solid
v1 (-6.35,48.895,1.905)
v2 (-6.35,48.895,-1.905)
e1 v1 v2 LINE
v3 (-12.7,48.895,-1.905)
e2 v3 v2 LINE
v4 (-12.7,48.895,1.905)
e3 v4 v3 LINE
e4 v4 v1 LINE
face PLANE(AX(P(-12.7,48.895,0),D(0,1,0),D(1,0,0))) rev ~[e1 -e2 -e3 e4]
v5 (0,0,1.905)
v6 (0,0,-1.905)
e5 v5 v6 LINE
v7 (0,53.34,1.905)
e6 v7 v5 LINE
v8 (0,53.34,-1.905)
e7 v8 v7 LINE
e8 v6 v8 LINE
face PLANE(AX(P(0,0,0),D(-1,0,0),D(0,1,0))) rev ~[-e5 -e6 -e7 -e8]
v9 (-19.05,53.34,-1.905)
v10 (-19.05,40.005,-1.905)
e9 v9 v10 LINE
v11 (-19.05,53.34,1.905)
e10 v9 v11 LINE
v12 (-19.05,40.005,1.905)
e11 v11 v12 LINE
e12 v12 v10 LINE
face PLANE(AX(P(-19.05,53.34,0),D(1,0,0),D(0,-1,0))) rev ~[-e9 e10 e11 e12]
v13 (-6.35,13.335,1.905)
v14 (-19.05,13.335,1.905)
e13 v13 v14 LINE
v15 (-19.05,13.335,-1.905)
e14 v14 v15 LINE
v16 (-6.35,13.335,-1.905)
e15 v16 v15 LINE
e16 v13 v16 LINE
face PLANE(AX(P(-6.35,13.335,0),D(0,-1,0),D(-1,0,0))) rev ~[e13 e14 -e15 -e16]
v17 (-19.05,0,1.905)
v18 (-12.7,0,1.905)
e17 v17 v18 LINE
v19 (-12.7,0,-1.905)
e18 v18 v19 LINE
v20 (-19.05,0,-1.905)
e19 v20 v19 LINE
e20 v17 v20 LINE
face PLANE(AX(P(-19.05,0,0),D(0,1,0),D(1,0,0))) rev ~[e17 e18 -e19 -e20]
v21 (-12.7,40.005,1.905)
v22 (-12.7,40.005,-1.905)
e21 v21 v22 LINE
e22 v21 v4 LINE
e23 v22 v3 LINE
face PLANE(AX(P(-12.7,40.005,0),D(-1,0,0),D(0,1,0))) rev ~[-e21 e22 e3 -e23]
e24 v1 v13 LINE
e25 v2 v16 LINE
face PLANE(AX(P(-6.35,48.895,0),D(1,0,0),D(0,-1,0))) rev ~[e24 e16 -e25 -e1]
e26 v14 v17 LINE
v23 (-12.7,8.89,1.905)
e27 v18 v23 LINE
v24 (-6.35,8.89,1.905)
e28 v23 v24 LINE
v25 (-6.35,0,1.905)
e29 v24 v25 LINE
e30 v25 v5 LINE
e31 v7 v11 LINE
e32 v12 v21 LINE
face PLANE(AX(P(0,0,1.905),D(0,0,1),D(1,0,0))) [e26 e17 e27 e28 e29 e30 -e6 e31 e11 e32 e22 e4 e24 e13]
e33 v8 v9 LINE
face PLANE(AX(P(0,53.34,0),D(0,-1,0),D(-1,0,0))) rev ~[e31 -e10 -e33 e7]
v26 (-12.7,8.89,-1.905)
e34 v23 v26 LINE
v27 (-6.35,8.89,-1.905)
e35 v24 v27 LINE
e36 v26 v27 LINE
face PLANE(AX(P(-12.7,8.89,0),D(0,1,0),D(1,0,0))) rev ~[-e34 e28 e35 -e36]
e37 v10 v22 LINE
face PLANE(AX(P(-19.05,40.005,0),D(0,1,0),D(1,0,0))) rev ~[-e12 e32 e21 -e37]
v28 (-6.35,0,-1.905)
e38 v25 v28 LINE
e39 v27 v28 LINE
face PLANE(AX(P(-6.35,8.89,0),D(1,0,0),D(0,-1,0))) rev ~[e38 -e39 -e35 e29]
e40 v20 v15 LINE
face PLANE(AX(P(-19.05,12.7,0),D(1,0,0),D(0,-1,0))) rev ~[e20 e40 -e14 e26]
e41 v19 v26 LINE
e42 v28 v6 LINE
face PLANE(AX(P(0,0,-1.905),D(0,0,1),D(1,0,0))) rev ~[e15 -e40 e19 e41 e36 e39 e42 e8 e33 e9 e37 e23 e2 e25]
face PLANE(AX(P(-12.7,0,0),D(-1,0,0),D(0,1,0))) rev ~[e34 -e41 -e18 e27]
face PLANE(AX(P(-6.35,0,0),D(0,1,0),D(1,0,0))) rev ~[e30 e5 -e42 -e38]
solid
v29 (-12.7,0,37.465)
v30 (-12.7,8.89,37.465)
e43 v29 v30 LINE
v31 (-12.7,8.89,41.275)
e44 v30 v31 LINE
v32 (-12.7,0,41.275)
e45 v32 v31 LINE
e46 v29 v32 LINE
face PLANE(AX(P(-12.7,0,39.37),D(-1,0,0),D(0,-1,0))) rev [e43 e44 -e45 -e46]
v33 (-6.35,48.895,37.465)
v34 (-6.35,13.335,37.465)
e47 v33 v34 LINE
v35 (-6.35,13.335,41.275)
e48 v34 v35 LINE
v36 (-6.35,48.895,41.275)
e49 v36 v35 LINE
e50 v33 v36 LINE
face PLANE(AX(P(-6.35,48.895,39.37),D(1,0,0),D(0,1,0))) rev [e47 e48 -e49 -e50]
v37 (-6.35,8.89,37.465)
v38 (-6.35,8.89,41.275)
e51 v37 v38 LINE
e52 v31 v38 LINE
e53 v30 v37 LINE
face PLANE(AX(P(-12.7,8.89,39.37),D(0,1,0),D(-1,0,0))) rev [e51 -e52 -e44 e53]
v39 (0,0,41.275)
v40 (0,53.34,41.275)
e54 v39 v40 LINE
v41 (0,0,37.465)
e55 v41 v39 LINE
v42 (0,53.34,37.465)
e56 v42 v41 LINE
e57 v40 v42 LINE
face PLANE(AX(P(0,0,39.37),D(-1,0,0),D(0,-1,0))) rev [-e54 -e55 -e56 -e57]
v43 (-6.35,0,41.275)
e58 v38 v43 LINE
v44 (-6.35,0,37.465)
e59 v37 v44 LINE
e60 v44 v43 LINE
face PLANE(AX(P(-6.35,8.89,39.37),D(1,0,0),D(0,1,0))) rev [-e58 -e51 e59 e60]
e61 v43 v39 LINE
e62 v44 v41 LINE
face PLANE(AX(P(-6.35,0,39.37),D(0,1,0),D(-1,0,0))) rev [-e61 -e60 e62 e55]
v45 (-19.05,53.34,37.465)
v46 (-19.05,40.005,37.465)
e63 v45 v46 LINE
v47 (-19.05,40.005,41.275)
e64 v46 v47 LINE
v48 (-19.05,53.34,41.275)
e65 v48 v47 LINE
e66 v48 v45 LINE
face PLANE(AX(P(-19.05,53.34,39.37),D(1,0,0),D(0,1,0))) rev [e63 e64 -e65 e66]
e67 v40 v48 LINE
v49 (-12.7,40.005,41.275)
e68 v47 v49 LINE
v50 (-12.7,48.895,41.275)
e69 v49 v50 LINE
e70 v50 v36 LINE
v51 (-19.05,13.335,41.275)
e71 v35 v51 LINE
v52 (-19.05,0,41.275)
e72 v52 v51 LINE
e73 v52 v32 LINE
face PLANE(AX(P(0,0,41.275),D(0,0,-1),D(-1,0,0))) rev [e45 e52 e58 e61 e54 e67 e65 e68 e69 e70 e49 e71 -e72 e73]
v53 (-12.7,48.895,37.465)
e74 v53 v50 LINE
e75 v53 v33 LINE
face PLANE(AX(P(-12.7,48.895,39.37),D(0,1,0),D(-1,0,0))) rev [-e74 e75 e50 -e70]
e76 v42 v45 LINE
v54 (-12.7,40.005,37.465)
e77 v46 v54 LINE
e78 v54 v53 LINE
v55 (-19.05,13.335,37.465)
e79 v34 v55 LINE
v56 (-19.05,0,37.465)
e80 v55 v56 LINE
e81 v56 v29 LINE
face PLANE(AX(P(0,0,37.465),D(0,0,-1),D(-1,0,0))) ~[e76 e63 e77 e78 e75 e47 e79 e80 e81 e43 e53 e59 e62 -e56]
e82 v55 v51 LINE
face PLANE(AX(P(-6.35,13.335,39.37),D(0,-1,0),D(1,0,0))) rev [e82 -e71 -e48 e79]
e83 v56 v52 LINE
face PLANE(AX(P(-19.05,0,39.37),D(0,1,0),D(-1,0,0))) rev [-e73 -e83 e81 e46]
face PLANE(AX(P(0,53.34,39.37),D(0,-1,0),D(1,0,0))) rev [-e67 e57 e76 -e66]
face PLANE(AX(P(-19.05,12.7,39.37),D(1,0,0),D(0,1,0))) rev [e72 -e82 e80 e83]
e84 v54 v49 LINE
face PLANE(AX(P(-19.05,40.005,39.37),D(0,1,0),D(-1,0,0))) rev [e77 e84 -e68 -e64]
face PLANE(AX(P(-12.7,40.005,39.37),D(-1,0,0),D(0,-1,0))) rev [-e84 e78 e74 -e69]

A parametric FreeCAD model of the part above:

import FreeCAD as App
import Part
import Sketcher
Q = App.Units.Quantity

doc = App.newDocument("Part")
body = doc.addObject("PartDesign::Body", "Body")
body.AllowCompound = True

sketch1 = body.newObject("Sketcher::SketchObject", "Sketch")
sketch1.AttachmentSupport = (doc.getObject("XY_Plane"), [""])
sketch1.MapMode = "FlatFace"
sketch1.addGeometry([
    Part.LineSegment(App.Vector(0, 0, 0), App.Vector(0, 53, 0)),
    Part.LineSegment(App.Vector(0, 53, 0), App.Vector(-19, 53, 0)),
    Part.LineSegment(App.Vector(-19, 53, 0), App.Vector(-19, 40, 0)),
    Part.LineSegment(App.Vector(-19, 40, 0), App.Vector(-13, 40, 0)),
    Part.LineSegment(App.Vector(-13, 40, 0), App.Vector(-13, 49, 0)),
    Part.LineSegment(App.Vector(-13, 49, 0), App.Vector(-6, 49, 0)),
    Part.LineSegment(App.Vector(-6, 49, 0), App.Vector(-6, 13, 0)),
    Part.LineSegment(App.Vector(-6, 13, 0), App.Vector(-19, 13, 0)),
    Part.LineSegment(App.Vector(-19, 13, 0), App.Vector(-19, 0, 0)),
    Part.LineSegment(App.Vector(-19, 0, 0), App.Vector(-13, 0, 0)),
    Part.LineSegment(App.Vector(-13, 0, 0), App.Vector(-13, 9, 0)),
    Part.LineSegment(App.Vector(-13, 9, 0), App.Vector(-6, 9, 0)),
    Part.LineSegment(App.Vector(-6, 9, 0), App.Vector(-6, 0, 0)),
    Part.LineSegment(App.Vector(-6, 0, 0), App.Vector(0, 0, 0)),
], False)
sketch1.addConstraint([
    Sketcher.Constraint("Coincident", 0, 2, 1, 1),
    Sketcher.Constraint("Coincident", 1, 2, 2, 1),
    Sketcher.Constraint("Coincident", 2, 2, 3, 1),
    Sketcher.Constraint("Coincident", 3, 2, 4, 1),
    Sketcher.Constraint("Coincident", 4, 2, 5, 1),
    Sketcher.Constraint("Coincident", 5, 2, 6, 1),
    Sketcher.Constraint("Coincident", 6, 2, 7, 1),
    Sketcher.Constraint("Coincident", 7, 2, 8, 1),
    Sketcher.Constraint("Coincident", 8, 2, 9, 1),
    Sketcher.Constraint("Coincident", 9, 2, 10, 1),
    Sketcher.Constraint("Coincident", 10, 2, 11, 1),
    Sketcher.Constraint("Coincident", 11, 2, 12, 1),
    Sketcher.Constraint("Coincident", 12, 2, 13, 1),
    Sketcher.Constraint("Coincident", 13, 2, 0, 1),
    Sketcher.Constraint("Vertical", 0),
    Sketcher.Constraint("Horizontal", 1),
    Sketcher.Constraint("Vertical", 2),
    Sketcher.Constraint("Horizontal", 3),
    Sketcher.Constraint("Vertical", 4),
    Sketcher.Constraint("Horizontal", 5),
    Sketcher.Constraint("Vertical", 6),
    Sketcher.Constraint("Horizontal", 7),
    Sketcher.Constraint("Vertical", 8),
    Sketcher.Constraint("Horizontal", 9),
    Sketcher.Constraint("Vertical", 10),
    Sketcher.Constraint("Horizontal", 11),
    Sketcher.Constraint("Vertical", 12),
    Sketcher.Constraint("Horizontal", 13),
    Sketcher.Constraint("Coincident", 13, 2, -1, 1),
    Sketcher.Constraint("PointOnObject", 8, 2, -1),
    Sketcher.Constraint("Vertical", 2, 2, 7, 2),
    Sketcher.Constraint("Vertical", 4, 2, 9, 2),
    Sketcher.Constraint("Vertical", 6, 2, 11, 2),
    Sketcher.Constraint("Equal", 3, 5),
    Sketcher.Constraint("Equal", 11, 13),
    Sketcher.Constraint("Equal", 2, 8),
    Sketcher.Constraint("Equal", 4, 10),
    Sketcher.Constraint("DistanceY", 6, 2, 6, 1, Q("1.4 in")),
    Sketcher.Constraint("DistanceX", 3, 1, 3, 2, Q("0.25 in")),
    Sketcher.Constraint("DistanceY", 2, 2, 2, 1, Q("0.525 in")),
    Sketcher.Constraint("DistanceY", 0, 1, 0, 2, Q("2.1 in")),
])
pad1 = body.newObject("PartDesign::Pad", "Pad")
pad1.Profile = sketch1
pad1.Length = Q("0.15 in")
pad1.Midplane = True
doc.recompute()

datumplane = body.newObject("PartDesign::Plane", "DatumPlane")
datumplane.AttachmentSupport = (doc.getObject("XY_Plane"), [""])
datumplane.MapMode = "FlatFace"
datumplane.AttachmentOffset = App.Placement(App.Vector(0, 0, 0.775 * 25.4), App.Rotation())
mirrored = body.newObject("PartDesign::Mirrored", "Mirrored")
mirrored.Originals = [pad1]
mirrored.MirrorPlane = (datumplane, [""])
body.Tip = mirrored

doc.recompute()
